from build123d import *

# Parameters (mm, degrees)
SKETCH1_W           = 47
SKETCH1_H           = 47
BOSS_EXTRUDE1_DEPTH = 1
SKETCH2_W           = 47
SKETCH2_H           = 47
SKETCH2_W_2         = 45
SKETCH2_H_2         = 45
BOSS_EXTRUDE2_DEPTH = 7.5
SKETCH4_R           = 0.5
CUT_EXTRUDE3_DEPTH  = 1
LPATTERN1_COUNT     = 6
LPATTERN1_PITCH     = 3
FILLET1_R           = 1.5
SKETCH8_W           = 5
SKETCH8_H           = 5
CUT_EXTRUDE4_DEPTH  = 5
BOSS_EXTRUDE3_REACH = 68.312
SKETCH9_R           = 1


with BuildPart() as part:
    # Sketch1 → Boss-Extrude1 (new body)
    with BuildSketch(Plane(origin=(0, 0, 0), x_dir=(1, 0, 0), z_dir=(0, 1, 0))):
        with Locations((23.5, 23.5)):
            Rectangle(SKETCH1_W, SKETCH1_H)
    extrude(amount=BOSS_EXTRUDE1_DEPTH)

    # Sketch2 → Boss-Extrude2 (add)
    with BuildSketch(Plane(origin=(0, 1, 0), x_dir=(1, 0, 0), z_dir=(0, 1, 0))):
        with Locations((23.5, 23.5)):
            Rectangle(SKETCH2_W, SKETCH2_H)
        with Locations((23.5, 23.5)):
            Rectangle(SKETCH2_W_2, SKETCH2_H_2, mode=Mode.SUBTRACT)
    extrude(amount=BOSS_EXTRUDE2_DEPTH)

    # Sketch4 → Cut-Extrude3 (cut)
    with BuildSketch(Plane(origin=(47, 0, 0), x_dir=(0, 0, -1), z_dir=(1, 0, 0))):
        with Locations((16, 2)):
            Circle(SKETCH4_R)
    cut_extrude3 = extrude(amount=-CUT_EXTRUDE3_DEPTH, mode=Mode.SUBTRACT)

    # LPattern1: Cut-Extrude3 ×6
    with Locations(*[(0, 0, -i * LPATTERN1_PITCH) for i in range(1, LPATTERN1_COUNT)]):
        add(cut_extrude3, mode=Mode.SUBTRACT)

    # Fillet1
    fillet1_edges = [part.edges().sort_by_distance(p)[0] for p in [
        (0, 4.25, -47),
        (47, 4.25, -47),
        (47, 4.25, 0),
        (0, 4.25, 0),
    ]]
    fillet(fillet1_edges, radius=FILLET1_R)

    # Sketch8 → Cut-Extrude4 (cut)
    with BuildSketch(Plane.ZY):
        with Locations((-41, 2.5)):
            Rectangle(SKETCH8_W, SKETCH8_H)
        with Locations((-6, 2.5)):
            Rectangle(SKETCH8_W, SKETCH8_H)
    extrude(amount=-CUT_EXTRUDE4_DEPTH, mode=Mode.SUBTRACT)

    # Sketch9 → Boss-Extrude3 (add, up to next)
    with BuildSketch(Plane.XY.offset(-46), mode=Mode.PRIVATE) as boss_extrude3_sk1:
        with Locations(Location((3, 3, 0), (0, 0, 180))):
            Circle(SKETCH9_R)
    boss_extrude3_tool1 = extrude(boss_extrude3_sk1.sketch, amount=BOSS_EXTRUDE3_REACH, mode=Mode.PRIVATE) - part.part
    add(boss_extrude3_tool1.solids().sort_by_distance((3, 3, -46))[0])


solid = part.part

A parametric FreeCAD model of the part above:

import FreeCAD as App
import Part
import Sketcher


def edges_at(feature, points):
    """Names of the edges that pass closest to the given points."""
    edges = feature.Shape.Edges
    near = lambda p: min(range(len(edges)), key=lambda i: edges[i].distToShape(Part.Vertex(*p))[0])
    return sorted({f"Edge{near(p) + 1}" for p in points})

doc = App.newDocument("Part")
body = doc.addObject("PartDesign::Body", "Body")

sketch1 = body.newObject("Sketcher::SketchObject", "Sketch")
sketch1.AttachmentSupport = (doc.getObject("XZ_Plane"), [""])
sketch1.MapMode = "FlatFace"
sketch1.addGeometry([
    Part.LineSegment(App.Vector(0, -47, 0), App.Vector(0, 0, 0)),
    Part.LineSegment(App.Vector(0, 0, 0), App.Vector(47, 0, 0)),
    Part.LineSegment(App.Vector(47, 0, 0), App.Vector(47, -47, 0)),
    Part.LineSegment(App.Vector(47, -47, 0), App.Vector(0, -47, 0)),
], False)
sketch1.addConstraint([
    Sketcher.Constraint("Coincident", 0, 2, 1, 1),
    Sketcher.Constraint("Coincident", 1, 2, 2, 1),
    Sketcher.Constraint("Coincident", 2, 2, 3, 1),
    Sketcher.Constraint("Coincident", 3, 2, 0, 1),
    Sketcher.Constraint("Vertical", 0),
    Sketcher.Constraint("Horizontal", 1),
    Sketcher.Constraint("Vertical", 2),
    Sketcher.Constraint("Horizontal", 3),
    Sketcher.Constraint("Coincident", 0, 2, -1, 1),
    Sketcher.Constraint("Equal", 3, 0),
    Sketcher.Constraint("DistanceX", 1, 1, 1, 2, 47.0),
])
pad1 = body.newObject("PartDesign::Pad", "Pad")
pad1.Profile = sketch1
pad1.Length = 1
pad1.Reversed = True

sketch2 = body.newObject("Sketcher::SketchObject", "Sketch001")
sketch2.AttachmentSupport = (doc.getObject("XZ_Plane"), [""])
sketch2.MapMode = "FlatFace"
sketch2.AttachmentOffset = App.Placement(App.Vector(0, 0, -1), App.Rotation())
sketch2.addGeometry([
    Part.LineSegment(App.Vector(0, -47, 0), App.Vector(0, 0, 0)),
    Part.LineSegment(App.Vector(0, 0, 0), App.Vector(47, 0, 0)),
    Part.LineSegment(App.Vector(47, 0, 0), App.Vector(47, -47, 0)),
    Part.LineSegment(App.Vector(47, -47, 0), App.Vector(0, -47, 0)),
    Part.LineSegment(App.Vector(46, -1, 0), App.Vector(1, -1, 0)),
    Part.LineSegment(App.Vector(1, -1, 0), App.Vector(1, -46, 0)),
    Part.LineSegment(App.Vector(1, -46, 0), App.Vector(46, -46, 0)),
    Part.LineSegment(App.Vector(46, -46, 0), App.Vector(46, -1, 0)),
], False)
sketch2.addConstraint([
    Sketcher.Constraint("Coincident", 0, 2, 1, 1),
    Sketcher.Constraint("Coincident", 1, 2, 2, 1),
    Sketcher.Constraint("Coincident", 2, 2, 3, 1),
    Sketcher.Constraint("Coincident", 3, 2, 0, 1),
    Sketcher.Constraint("Coincident", 4, 2, 5, 1),
    Sketcher.Constraint("Coincident", 5, 2, 6, 1),
    Sketcher.Constraint("Coincident", 6, 2, 7, 1),
    Sketcher.Constraint("Coincident", 7, 2, 4, 1),
    Sketcher.Constraint("Vertical", 0),
    Sketcher.Constraint("Horizontal", 1),
    Sketcher.Constraint("Vertical", 2),
    Sketcher.Constraint("Horizontal", 3),
    Sketcher.Constraint("Horizontal", 4),
    Sketcher.Constraint("Vertical", 5),
    Sketcher.Constraint("Horizontal", 6),
    Sketcher.Constraint("Vertical", 7),
    Sketcher.Constraint("Coincident", 0, 2, -1, 1),
    Sketcher.Constraint("Equal", 3, 0),
    Sketcher.Constraint("Equal", 6, 5),
    Sketcher.Constraint("DistanceX", 1, 1, 1, 2, 47.0),
    Sketcher.Constraint("DistanceX", 4, 2, 4, 1, 45.0),
    Sketcher.Constraint("DistanceX", -1, 1, 4, 2, 1.0),
    Sketcher.Constraint("DistanceY", 4, 2, -1, 1, 1.0),
])
pad2 = body.newObject("PartDesign::Pad", "Pad001")
pad2.Profile = sketch2
pad2.Length = 7.5
pad2.Reversed = True

sketch3 = body.newObject("Sketcher::SketchObject", "Sketch002")
sketch3.AttachmentSupport = (doc.getObject("YZ_Plane"), [""])
sketch3.MapMode = "FlatFace"
sketch3.AttachmentOffset = App.Placement(App.Vector(0, 0, 47), App.Rotation())
sketch3.addGeometry(Part.Circle(App.Vector(2, -16, 0), App.Vector(0, 0, 1), 0.5), False)
sketch3.addConstraint([
    Sketcher.Constraint("Diameter", 0, 1.0),
    Sketcher.Constraint("DistanceX", -1, 1, 0, 3, 2.0),
    Sketcher.Constraint("DistanceY", 0, 3, -1, 1, 16.0),
])
pocket1 = body.newObject("PartDesign::Pocket", "Pocket")
pocket1.Profile = sketch3
pocket1.Length = 1
doc.recompute()

linearpattern = body.newObject("PartDesign::LinearPattern", "LinearPattern")
linearpattern.Originals = [pocket1]
linearpattern.Direction = (doc.getObject("Z_Axis"), [""])
linearpattern.Mode = "offset"
linearpattern.Offset = 3
linearpattern.Occurrences = 6
linearpattern.Reversed = True
body.Tip = linearpattern
doc.recompute()

fillet = body.newObject("PartDesign::Fillet", "Fillet")
fillet.Base = (linearpattern, edges_at(linearpattern, [
    (0, 4.25, -47),
    (47, 4.25, -47),
    (47, 4.25, 0),
    (0, 4.25, 0),
]))
fillet.Radius = 1.5

sketch4 = body.newObject("Sketcher::SketchObject", "Sketch003")
sketch4.AttachmentSupport = (doc.getObject("YZ_Plane"), [""])
sketch4.MapMode = "FlatFace"
sketch4.addGeometry([
    Part.LineSegment(App.Vector(5, -44, 0), App.Vector(0, -44, 0)),
    Part.LineSegment(App.Vector(0, -44, 0), App.Vector(0, -38, 0)),
    Part.LineSegment(App.Vector(0, -38, 0), App.Vector(5, -38, 0)),
    Part.LineSegment(App.Vector(5, -38, 0), App.Vector(5, -44, 0)),
    Part.LineSegment(App.Vector(5, -8, 0), App.Vector(0, -8, 0)),
    Part.LineSegment(App.Vector(0, -8, 0), App.Vector(0, -4, 0)),
    Part.LineSegment(App.Vector(0, -4, 0), App.Vector(5, -4, 0)),
    Part.LineSegment(App.Vector(5, -4, 0), App.Vector(5, -8, 0)),
], False)
sketch4.addConstraint([
    Sketcher.Constraint("Coincident", 0, 2, 1, 1),
    Sketcher.Constraint("Coincident", 1, 2, 2, 1),
    Sketcher.Constraint("Coincident", 2, 2, 3, 1),
    Sketcher.Constraint("Coincident", 3, 2, 0, 1),
    Sketcher.Constraint("Coincident", 4, 2, 5, 1),
    Sketcher.Constraint("Coincident", 5, 2, 6, 1),
    Sketcher.Constraint("Coincident", 6, 2, 7, 1),
    Sketcher.Constraint("Coincident", 7, 2, 4, 1),
    Sketcher.Constraint("Horizontal", 0),
    Sketcher.Constraint("Vertical", 1),
    Sketcher.Constraint("Horizontal", 2),
    Sketcher.Constraint("Vertical", 3),
    Sketcher.Constraint("Horizontal", 4),
    Sketcher.Constraint("Vertical", 5),
    Sketcher.Constraint("Horizontal", 6),
    Sketcher.Constraint("Vertical", 7),
    Sketcher.Constraint("PointOnObject", 0, 2, -2),
    Sketcher.Constraint("PointOnObject", 4, 2, -2),
    Sketcher.Constraint("Vertical", 3, 2, 6, 2),
    Sketcher.Constraint("Equal", 6, 1),
    Sketcher.Constraint("Equal", 3, 5),
    Sketcher.Constraint("DistanceX", 0, 2, 0, 1, 5.0),
    Sketcher.Constraint("DistanceY", 1, 2, 4, 2, 30.0),
    Sketcher.Constraint("DistanceY", 0, 2, -1, 1, 43.5),
])
pocket2 = body.newObject("PartDesign::Pocket", "Pocket001")
pocket2.Profile = sketch4
pocket2.Length = 5
pocket2.Reversed = True

sketch5 = body.newObject("Sketcher::SketchObject", "Sketch004")
sketch5.AttachmentSupport = (doc.getObject("XY_Plane"), [""])
sketch5.MapMode = "FlatFace"
sketch5.AttachmentOffset = App.Placement(App.Vector(0, 0, -46), App.Rotation())
sketch5.addGeometry(Part.Circle(App.Vector(3, 3, 0), App.Vector(0, 0, 1), 1), False)
sketch5.addConstraint([
    Sketcher.Constraint("Diameter", 0, 2.0),
    Sketcher.Constraint("DistanceX", -1, 1, 0, 3, 3.0),
    Sketcher.Constraint("DistanceY", -1, 1, 0, 3, 3.0),
])
pad3 = body.newObject("PartDesign::Pad", "Pad002")
pad3.Profile = sketch5
pad3.Type = "UpToFirst"

doc.recompute()
